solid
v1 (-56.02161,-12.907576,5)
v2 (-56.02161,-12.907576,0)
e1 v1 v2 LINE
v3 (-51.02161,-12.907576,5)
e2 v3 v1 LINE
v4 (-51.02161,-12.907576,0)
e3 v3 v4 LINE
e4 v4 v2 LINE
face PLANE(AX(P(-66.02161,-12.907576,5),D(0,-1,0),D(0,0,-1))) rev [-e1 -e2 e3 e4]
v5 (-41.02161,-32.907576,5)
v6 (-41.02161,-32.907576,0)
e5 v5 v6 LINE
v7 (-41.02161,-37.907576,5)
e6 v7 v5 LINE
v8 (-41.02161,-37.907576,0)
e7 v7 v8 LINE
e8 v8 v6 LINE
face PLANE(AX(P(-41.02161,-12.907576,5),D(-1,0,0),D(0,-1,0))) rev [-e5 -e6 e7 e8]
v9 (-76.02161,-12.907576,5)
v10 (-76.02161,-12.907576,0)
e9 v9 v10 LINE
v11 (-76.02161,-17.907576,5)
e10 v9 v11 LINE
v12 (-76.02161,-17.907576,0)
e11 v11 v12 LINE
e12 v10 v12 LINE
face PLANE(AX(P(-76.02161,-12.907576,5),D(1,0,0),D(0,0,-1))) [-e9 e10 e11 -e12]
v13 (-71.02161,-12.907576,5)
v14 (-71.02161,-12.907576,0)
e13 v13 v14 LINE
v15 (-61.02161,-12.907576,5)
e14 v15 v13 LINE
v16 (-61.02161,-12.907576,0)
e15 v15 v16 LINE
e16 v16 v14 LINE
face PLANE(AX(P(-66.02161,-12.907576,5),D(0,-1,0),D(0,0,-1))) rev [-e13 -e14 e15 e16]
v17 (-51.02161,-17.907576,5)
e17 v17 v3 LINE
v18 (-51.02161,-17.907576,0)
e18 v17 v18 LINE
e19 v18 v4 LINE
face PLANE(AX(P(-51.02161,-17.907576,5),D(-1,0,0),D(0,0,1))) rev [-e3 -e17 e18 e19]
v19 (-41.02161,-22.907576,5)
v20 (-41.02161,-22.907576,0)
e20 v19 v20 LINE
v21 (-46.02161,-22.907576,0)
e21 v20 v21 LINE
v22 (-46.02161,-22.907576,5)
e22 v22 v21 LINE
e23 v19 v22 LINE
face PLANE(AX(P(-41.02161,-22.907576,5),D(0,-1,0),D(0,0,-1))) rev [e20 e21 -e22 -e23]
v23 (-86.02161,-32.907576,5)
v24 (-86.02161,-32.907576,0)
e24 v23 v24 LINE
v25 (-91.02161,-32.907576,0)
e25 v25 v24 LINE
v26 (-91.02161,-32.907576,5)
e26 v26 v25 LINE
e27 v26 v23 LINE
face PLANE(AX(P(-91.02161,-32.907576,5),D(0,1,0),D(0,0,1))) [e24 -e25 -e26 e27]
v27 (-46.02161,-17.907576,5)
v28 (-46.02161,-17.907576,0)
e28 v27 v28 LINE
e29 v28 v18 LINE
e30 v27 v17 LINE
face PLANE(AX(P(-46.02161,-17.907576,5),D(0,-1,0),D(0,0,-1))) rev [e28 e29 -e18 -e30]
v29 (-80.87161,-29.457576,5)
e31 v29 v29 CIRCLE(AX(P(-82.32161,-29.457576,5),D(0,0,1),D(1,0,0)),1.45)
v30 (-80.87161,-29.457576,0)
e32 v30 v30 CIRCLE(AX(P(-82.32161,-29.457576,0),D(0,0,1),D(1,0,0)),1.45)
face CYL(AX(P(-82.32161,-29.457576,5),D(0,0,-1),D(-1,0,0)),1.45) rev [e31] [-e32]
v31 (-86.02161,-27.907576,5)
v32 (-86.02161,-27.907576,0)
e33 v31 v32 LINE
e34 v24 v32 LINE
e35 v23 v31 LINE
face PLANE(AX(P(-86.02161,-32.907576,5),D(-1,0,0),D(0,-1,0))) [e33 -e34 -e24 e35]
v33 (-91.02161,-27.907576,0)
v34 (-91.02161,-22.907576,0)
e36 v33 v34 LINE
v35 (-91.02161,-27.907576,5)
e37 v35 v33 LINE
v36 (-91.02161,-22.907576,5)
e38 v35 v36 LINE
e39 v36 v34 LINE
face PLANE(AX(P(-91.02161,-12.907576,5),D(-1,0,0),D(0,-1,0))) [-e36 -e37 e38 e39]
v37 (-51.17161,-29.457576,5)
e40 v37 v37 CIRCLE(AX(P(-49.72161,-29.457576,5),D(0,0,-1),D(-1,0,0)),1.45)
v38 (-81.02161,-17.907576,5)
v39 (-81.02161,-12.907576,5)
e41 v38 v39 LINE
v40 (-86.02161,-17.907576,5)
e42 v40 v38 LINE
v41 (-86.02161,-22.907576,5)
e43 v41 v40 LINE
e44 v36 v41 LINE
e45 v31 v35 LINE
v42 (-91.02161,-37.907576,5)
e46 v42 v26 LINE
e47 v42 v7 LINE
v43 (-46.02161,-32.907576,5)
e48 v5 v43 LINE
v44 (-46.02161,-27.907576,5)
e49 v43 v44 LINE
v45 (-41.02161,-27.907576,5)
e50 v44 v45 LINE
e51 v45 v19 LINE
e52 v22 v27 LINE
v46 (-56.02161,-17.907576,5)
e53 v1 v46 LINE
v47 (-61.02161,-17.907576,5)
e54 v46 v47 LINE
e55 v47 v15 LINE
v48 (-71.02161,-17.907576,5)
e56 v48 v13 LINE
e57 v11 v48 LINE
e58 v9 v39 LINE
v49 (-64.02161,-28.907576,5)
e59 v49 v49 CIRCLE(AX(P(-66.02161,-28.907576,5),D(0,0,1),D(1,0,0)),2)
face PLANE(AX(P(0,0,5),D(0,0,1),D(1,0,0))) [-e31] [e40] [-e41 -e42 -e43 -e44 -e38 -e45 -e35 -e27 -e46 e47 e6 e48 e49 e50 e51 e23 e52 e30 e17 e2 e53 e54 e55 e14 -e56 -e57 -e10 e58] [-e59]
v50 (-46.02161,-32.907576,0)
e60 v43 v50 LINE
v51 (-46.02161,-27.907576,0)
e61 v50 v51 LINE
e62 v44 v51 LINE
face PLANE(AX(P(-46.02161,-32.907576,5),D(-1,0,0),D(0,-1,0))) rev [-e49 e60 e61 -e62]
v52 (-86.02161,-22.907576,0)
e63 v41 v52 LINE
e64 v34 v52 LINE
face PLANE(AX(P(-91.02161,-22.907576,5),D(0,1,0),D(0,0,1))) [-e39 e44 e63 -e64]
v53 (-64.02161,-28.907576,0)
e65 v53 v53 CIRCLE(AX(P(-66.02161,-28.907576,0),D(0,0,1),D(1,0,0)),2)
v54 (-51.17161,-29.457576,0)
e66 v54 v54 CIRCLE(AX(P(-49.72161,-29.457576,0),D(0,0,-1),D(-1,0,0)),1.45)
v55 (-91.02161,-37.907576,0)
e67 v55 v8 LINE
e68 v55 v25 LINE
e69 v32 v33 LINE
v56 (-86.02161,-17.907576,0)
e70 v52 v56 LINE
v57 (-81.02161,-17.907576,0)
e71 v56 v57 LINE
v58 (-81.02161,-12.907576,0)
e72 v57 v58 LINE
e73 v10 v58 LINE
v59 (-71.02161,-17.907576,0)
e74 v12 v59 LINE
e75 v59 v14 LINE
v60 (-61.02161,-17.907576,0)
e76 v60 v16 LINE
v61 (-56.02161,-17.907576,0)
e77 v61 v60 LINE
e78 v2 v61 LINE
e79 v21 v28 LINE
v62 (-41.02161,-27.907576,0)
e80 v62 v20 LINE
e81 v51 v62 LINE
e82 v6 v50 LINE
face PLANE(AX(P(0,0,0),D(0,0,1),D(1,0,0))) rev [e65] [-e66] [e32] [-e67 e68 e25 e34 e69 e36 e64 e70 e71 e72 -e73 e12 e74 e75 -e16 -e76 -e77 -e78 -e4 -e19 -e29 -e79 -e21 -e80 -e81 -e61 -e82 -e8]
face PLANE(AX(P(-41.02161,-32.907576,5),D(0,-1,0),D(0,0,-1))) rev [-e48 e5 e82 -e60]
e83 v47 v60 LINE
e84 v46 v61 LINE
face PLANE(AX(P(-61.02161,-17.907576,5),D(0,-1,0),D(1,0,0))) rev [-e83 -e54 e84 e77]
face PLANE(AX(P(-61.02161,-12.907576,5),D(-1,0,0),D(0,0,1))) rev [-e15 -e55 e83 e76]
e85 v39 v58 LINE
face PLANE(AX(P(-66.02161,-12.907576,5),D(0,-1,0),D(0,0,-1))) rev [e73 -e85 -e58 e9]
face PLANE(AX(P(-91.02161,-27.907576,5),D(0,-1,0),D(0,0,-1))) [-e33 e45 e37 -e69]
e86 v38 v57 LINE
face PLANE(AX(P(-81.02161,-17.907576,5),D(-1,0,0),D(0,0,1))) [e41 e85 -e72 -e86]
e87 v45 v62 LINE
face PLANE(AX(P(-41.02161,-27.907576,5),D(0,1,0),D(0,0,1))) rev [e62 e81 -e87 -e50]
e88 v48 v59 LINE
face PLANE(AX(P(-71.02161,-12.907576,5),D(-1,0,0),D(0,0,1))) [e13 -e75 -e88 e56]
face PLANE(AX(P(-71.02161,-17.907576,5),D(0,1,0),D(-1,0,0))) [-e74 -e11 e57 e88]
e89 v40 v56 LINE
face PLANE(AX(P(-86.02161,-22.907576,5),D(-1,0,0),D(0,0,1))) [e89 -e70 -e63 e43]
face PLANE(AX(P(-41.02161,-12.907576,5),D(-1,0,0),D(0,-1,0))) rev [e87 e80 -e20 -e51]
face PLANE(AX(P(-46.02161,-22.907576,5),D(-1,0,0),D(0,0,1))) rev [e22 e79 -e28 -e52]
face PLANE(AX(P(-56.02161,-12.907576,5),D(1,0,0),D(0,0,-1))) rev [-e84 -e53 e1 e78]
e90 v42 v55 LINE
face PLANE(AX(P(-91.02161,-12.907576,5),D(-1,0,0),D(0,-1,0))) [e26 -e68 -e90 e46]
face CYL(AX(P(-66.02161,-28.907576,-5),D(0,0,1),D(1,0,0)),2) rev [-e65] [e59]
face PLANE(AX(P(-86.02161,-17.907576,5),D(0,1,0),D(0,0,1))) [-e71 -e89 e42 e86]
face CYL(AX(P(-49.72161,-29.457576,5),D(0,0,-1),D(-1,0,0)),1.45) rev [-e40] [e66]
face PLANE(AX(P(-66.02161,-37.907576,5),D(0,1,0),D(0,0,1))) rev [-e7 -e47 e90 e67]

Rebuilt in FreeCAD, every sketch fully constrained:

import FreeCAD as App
import Part
import Sketcher

V = App.Vector
Q = App.Units.Quantity

doc = App.newDocument("Part")
body = doc.addObject("PartDesign::Body", "Body")

# Sketch on XY plane
sketch1 = body.newObject("Sketcher::SketchObject", "Sketch")
sketch1.AttachmentSupport = (doc.getObject("XY_Plane"), [""])
sketch1.MapMode = "FlatFace"
sketch1.addGeometry([
    Part.LineSegment(V(-66, -13, 0), V(-66, -38, 0)),
    Part.LineSegment(V(-66, -38, 0), V(-41, -38, 0)),
    Part.LineSegment(V(-41, -38, 0), V(-41, -13, 0)),
    Part.LineSegment(V(-41, -13, 0), V(-66, -13, 0)),
], False)
sketch1.addConstraint([
    Sketcher.Constraint("Coincident", 0, 2, 1, 1),
    Sketcher.Constraint("Coincident", 1, 2, 2, 1),
    Sketcher.Constraint("Coincident", 2, 2, 3, 1),
    Sketcher.Constraint("Coincident", 3, 2, 0, 1),
    Sketcher.Constraint("Vertical", 0),
    Sketcher.Constraint("Horizontal", 1),
    Sketcher.Constraint("Vertical", 2),
    Sketcher.Constraint("Horizontal", 3),
    Sketcher.Constraint("Equal", 3, 0),
    Sketcher.Constraint("DistanceX", 1, 1, 1, 2, Q("25 mm")),
    Sketcher.Constraint("DistanceX", 0, 2, -1, 1, Q("66.02161 mm")),
    Sketcher.Constraint("DistanceY", 0, 2, -1, 1, Q("37.907576 mm")),
])
pad1 = body.newObject("PartDesign::Pad", "Pad")
pad1.Profile = sketch1
pad1.Length = 5

# Sketch on XY plane
sketch2 = body.newObject("Sketcher::SketchObject", "Sketch001")
sketch2.AttachmentSupport = (doc.getObject("XY_Plane"), [""])
sketch2.MapMode = "FlatFace"
sketch2.addGeometry([
    Part.Circle(V(-49.7, -29.5, 0), V(0, 0, 1), 1.4),  # 0
    Part.LineSegment(V(-46, -22.9, 0), V(-46, -17.9, 0)),  # 1
    Part.LineSegment(V(-46, -17.9, 0), V(-51, -17.9, 0)),  # 2
    Part.LineSegment(V(-51, -17.9, 0), V(-51, -12.9, 0)),  # 3
    Part.LineSegment(V(-51, -12.9, 0), V(-41, -12.9, 0)),  # 4
    Part.LineSegment(V(-41, -12.9, 0), V(-41, -22.9, 0)),  # 5
    Part.LineSegment(V(-41, -22.9, 0), V(-46, -22.9, 0)),  # 6
    Part.LineSegment(V(-41, -27.9, 0), V(-41, -32.9, 0)),  # 7
    Part.LineSegment(V(-41, -32.9, 0), V(-46, -32.9, 0)),  # 8
    Part.LineSegment(V(-46, -32.9, 0), V(-46, -27.9, 0)),  # 9
    Part.LineSegment(V(-46, -27.9, 0), V(-41, -27.9, 0)),  # 10
    Part.LineSegment(V(-56, -12.9, 0), V(-56, -17.9, 0)),  # 11
    Part.LineSegment(V(-56, -17.9, 0), V(-61, -17.9, 0)),  # 12
    Part.LineSegment(V(-61, -17.9, 0), V(-61, -12.9, 0)),  # 13
    Part.LineSegment(V(-61, -12.9, 0), V(-56, -12.9, 0)),  # 14
], False)
sketch2.addConstraint([
    Sketcher.Constraint("Coincident", 1, 2, 2, 1),
    Sketcher.Constraint("Coincident", 2, 2, 3, 1),
    Sketcher.Constraint("Coincident", 3, 2, 4, 1),
    Sketcher.Constraint("Coincident", 4, 2, 5, 1),
    Sketcher.Constraint("Coincident", 5, 2, 6, 1),
    Sketcher.Constraint("Coincident", 6, 2, 1, 1),
    Sketcher.Constraint("Coincident", 7, 2, 8, 1),
    Sketcher.Constraint("Coincident", 8, 2, 9, 1),
    Sketcher.Constraint("Coincident", 9, 2, 10, 1),
    Sketcher.Constraint("Coincident", 10, 2, 7, 1),
    Sketcher.Constraint("Coincident", 11, 2, 12, 1),
    Sketcher.Constraint("Coincident", 12, 2, 13, 1),
    Sketcher.Constraint("Coincident", 13, 2, 14, 1),
    Sketcher.Constraint("Coincident", 14, 2, 11, 1),
    Sketcher.Constraint("Vertical", 1),
    Sketcher.Constraint("Horizontal", 2),
    Sketcher.Constraint("Vertical", 3),
    Sketcher.Constraint("Horizontal", 4),
    Sketcher.Constraint("Vertical", 5),
    Sketcher.Constraint("Horizontal", 6),
    Sketcher.Constraint("Vertical", 7),
    Sketcher.Constraint("Horizontal", 8),
    Sketcher.Constraint("Vertical", 9),
    Sketcher.Constraint("Horizontal", 10),
    Sketcher.Constraint("Vertical", 11),
    Sketcher.Constraint("Horizontal", 12),
    Sketcher.Constraint("Vertical", 13),
    Sketcher.Constraint("Horizontal", 14),
    Sketcher.Constraint("Horizontal", 2, 2, 11, 2),
    Sketcher.Constraint("Horizontal", 4, 2, 13, 2),
    Sketcher.Constraint("Vertical", 5, 2, 7, 2),
    Sketcher.Constraint("Vertical", 6, 2, 8, 2),
    Sketcher.Constraint("Equal", 2, 6),
    Sketcher.Constraint("Equal", 10, 12),
    Sketcher.Constraint("Equal", 14, 1),
    Sketcher.Constraint("Equal", 1, 3),
    Sketcher.Constraint("Equal", 3, 7),
    Sketcher.Constraint("Diameter", 0, Q("2.9 mm")),
    Sketcher.Constraint("DistanceX", 2, 2, 2, 1, Q("5 mm")),
    Sketcher.Constraint("DistanceY", 7, 2, 5, 2, Q("10 mm")),
    Sketcher.Constraint("DistanceX", 11, 2, 2, 2, Q("5 mm")),
    Sketcher.Constraint("DistanceX", 0, 3, 1, 2, Q("3.7 mm")),
    Sketcher.Constraint("DistanceY", 0, 3, 1, 2, Q("11.55 mm")),
    Sketcher.Constraint("DistanceX", 0, 3, -1, 1, Q("49.72161 mm")),
    Sketcher.Constraint("DistanceY", 0, 3, -1, 1, Q("29.457576 mm")),
])
pocket1 = body.newObject("PartDesign::Pocket", "Pocket")
pocket1.Profile = sketch2
pocket1.Length = 5
pocket1.Reversed = True
doc.recompute()

datumplane = body.newObject("PartDesign::Plane", "DatumPlane")
datumplane.AttachmentSupport = (doc.getObject("YZ_Plane"), [""])
datumplane.MapMode = "FlatFace"
datumplane.AttachmentOffset = App.Placement(V(0, 0, -66.02161), App.Rotation())
mirrored = body.newObject("PartDesign::Mirrored", "Mirrored")
mirrored.Originals = [pad1, pocket1]
mirrored.MirrorPlane = (datumplane, [""])
body.Tip = mirrored

# Sketch on XY plane
sketch3 = body.newObject("Sketcher::SketchObject", "Sketch002")
sketch3.AttachmentSupport = (doc.getObject("XY_Plane"), [""])
sketch3.MapMode = "FlatFace"
sketch3.AttachmentOffset = App.Placement(V(0, 0, 5), App.Rotation())
sketch3.addGeometry(Part.Circle(V(-66, -28.9, 0), V(0, 0, 1), 2), False)
sketch3.addConstraint([
    Sketcher.Constraint("Diameter", 0, Q("4 mm")),
    Sketcher.Constraint("DistanceX", 0, 3, -1, 1, Q("66.02161 mm")),
    Sketcher.Constraint("DistanceY", 0, 3, -1, 1, Q("28.907576 mm")),
])
pocket2 = body.newObject("PartDesign::Pocket", "Pocket001")
pocket2.Profile = sketch3
pocket2.Length = 10

doc.recompute()
